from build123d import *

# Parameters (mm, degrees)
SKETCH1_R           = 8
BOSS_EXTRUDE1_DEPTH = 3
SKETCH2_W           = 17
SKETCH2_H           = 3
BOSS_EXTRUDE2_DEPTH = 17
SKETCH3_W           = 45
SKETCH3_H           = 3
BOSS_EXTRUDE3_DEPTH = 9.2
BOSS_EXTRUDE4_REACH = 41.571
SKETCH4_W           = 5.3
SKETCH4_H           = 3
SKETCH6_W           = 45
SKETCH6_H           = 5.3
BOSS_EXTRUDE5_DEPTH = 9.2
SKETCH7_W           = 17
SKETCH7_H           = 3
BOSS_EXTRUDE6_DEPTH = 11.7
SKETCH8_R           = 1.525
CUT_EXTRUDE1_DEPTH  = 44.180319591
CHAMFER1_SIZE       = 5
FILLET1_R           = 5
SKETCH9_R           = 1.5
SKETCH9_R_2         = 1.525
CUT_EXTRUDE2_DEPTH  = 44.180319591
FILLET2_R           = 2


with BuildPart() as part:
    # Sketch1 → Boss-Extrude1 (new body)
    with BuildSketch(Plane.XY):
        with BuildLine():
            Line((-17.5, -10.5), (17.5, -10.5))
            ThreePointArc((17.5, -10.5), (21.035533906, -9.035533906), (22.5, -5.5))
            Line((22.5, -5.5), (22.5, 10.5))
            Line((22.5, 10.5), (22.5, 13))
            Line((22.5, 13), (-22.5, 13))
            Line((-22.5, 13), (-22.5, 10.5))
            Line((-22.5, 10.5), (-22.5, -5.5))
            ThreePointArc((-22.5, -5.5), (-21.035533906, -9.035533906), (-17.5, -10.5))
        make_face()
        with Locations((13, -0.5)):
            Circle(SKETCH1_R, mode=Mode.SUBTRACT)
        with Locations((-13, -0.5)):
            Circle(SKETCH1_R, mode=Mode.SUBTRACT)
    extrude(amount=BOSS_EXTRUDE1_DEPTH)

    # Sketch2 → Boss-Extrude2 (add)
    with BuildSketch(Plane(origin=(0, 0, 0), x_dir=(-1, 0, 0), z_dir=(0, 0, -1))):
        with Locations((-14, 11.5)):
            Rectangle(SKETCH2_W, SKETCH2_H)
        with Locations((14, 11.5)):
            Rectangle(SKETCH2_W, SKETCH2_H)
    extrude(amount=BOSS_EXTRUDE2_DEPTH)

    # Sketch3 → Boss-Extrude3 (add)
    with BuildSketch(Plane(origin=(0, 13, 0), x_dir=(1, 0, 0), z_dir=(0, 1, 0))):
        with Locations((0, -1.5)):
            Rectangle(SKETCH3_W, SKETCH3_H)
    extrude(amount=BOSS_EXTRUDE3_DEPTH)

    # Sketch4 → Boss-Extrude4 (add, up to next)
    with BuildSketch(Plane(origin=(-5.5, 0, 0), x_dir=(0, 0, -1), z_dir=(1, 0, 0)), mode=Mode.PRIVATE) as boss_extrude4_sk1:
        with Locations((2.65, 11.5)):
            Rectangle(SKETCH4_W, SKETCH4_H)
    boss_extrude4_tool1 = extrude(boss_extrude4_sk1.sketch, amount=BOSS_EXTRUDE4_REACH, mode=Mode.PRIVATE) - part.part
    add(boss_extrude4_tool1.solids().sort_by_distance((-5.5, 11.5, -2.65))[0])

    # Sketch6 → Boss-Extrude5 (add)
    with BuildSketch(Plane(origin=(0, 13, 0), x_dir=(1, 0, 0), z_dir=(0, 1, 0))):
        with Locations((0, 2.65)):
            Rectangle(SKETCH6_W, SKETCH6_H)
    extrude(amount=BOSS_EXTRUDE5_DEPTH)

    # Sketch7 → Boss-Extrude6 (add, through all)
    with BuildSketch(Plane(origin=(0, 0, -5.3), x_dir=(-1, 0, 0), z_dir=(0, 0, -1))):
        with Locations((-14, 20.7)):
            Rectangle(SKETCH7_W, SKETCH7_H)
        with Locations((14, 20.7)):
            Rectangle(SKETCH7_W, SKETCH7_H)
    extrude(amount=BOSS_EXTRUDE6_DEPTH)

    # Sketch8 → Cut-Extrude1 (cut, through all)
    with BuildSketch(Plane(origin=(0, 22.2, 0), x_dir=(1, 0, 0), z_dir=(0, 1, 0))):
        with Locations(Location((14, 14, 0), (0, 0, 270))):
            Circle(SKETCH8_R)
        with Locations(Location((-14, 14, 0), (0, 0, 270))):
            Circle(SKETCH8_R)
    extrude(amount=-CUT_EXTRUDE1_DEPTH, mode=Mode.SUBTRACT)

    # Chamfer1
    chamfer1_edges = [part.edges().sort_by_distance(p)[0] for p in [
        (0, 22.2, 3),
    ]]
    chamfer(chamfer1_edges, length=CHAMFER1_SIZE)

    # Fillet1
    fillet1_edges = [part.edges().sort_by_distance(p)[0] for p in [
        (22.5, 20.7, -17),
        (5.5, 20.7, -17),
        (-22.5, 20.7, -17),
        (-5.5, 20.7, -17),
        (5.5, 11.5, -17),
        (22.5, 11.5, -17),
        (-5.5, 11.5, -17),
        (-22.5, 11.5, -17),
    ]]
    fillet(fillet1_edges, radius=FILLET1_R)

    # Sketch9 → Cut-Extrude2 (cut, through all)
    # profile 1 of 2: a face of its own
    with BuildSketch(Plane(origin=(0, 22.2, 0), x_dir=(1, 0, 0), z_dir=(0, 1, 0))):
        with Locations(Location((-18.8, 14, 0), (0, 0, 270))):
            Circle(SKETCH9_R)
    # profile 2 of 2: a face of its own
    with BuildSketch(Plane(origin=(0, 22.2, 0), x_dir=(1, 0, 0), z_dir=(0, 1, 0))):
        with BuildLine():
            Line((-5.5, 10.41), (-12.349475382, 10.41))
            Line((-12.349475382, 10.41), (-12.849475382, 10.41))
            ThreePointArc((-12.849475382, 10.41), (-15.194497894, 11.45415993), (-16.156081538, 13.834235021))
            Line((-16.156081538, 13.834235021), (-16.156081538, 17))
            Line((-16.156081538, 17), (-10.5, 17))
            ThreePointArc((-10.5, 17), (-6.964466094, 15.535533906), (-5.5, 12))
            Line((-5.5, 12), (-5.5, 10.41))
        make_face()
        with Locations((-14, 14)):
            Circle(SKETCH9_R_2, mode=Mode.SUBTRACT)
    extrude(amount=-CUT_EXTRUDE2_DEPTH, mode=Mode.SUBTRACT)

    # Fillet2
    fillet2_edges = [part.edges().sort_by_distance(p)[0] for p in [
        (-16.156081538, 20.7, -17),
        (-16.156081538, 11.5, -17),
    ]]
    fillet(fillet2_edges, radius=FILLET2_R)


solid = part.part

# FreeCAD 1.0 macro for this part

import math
import FreeCAD as App
import Part
import Sketcher
from FreeCAD import Vector
Q = App.Units.Quantity


def edges_at(feature, points):
    """Names of the edges that pass closest to the given points."""
    edges = feature.Shape.Edges
    near = lambda p: min(range(len(edges)), key=lambda i: edges[i].distToShape(Part.Vertex(*p))[0])
    return sorted({f"Edge{near(p) + 1}" for p in points})

doc = App.newDocument("Part")
params = doc.addObject("Spreadsheet::Sheet", "Params")
for row, (alias, value) in enumerate([
    ("sketch1_diameter", "16 mm"),
    ("sketch1_radius", "5 mm"),
    ("sketch1_width", "35 mm"),
    ("sketch1_height", "18.5 mm"),
    ("pad1_length", "3 mm"),
    ("sketch2_width", "17 mm"),
    ("sketch2_height", "3 mm"),
    ("pad2_length", "17 mm"),
    ("sketch3_width", "45 mm"),
    ("sketch3_height", "3 mm"),
    ("pad3_length", "9.2 mm"),
    ("sketch4_width", "3 mm"),
    ("sketch4_height", "5.3 mm"),
    ("sketch5_width", "45 mm"),
    ("sketch5_height", "5.3 mm"),
    ("pad5_length", "9.2 mm"),
    ("sketch6_width", "17 mm"),
    ("sketch6_height", "3 mm"),
    ("pad6_length", "11.7 mm"),
    ("sketch7_diameter", "3.05 mm"),
    ("chamfer_size", "5 mm"),
    ("fillet_radius", "5 mm"),
    ("sketch8_diameter", "3 mm"),
    ("sketch8_radius", "5 mm"),
    ("sketch8_diameter2", "3.05 mm"),
    ("sketch8_height", "1.59 mm"),
    ("pocket2_length", "44.18032 mm"),
    ("fillet2_radius", "2 mm"),
], start=1):
    params.set(f"A{row}", alias)
    params.set(f"B{row}", "=" + value)
    params.setAlias(f"B{row}", alias)

body = doc.addObject("PartDesign::Body", "Body")

sketch1 = body.newObject("Sketcher::SketchObject", "Sketch")
sketch1.AttachmentSupport = (doc.getObject("XY_Plane"), [""])
sketch1.MapMode = "FlatFace"
sketch1.addGeometry([
    Part.LineSegment(Vector(-17.5, -10.5, 0), Vector(17.5, -10.5, 0)),
    Part.ArcOfCircle(Part.Circle(Vector(17.5, -5.5, 0), Vector(0, 0, 1), 5), math.radians(-90), math.radians(0)),
    Part.LineSegment(Vector(22.5, -5.5, 0), Vector(22.5, 13, 0)),
    Part.LineSegment(Vector(22.5, 13, 0), Vector(-22.5, 13, 0)),
    Part.LineSegment(Vector(-22.5, 13, 0), Vector(-22.5, -5.5, 0)),
    Part.ArcOfCircle(Part.Circle(Vector(-17.5, -5.5, 0), Vector(0, 0, 1), 5), math.radians(180), math.radians(270)),
    Part.Circle(Vector(-13, -0.5, 0), Vector(0, 0, 1), 8),
    Part.Circle(Vector(13, -0.5, 0), Vector(0, 0, 1), 8),
], False)
sketch1.addConstraint([
    Sketcher.Constraint("Tangent", 0, 2, 1, 1),
    Sketcher.Constraint("Tangent", 1, 2, 2, 1),
    Sketcher.Constraint("Coincident", 2, 2, 3, 1),
    Sketcher.Constraint("Coincident", 3, 2, 4, 1),
    Sketcher.Constraint("Tangent", 4, 2, 5, 1),
    Sketcher.Constraint("Tangent", 5, 2, 0, 1),
    Sketcher.Constraint("Horizontal", 0),
    Sketcher.Constraint("Vertical", 2),
    Sketcher.Constraint("Horizontal", 3),
    Sketcher.Constraint("Vertical", 4),
    Sketcher.Constraint("Equal", 1, 5),
    Sketcher.Constraint("Equal", 6, 7),
    Sketcher.Constraint("Symmetric", 6, 3, 7, 3, -2),
    Sketcher.Constraint("Diameter", 6, Q("16 mm")),
    Sketcher.Constraint("Radius", 1, Q("5 mm")),
    Sketcher.Constraint("DistanceX", 0, 1, 0, 2, Q("35 mm")),
    Sketcher.Constraint("DistanceY", 2, 1, 2, 2, Q("18.5 mm")),
    Sketcher.Constraint("DistanceX", 6, 3, -1, 1, Q("13 mm")),
    Sketcher.Constraint("DistanceY", -1, 1, 2, 2, Q("13 mm")),
    Sketcher.Constraint("DistanceY", 5, 3, 6, 3, Q("5 mm")),
    Sketcher.Constraint("DistanceX", -1, 1, 1, 3, Q("17.5 mm")),
])
sketch1.setExpression("Constraints[13]", "Params.sketch1_diameter")
sketch1.setExpression("Constraints[14]", "Params.sketch1_radius")
sketch1.setExpression("Constraints[15]", "Params.sketch1_width")
sketch1.setExpression("Constraints[16]", "Params.sketch1_height")
pad1 = body.newObject("PartDesign::Pad", "Pad")
pad1.Profile = sketch1
pad1.setExpression("Length", "Params.pad1_length")

sketch2 = body.newObject("Sketcher::SketchObject", "Sketch001")
sketch2.AttachmentSupport = (doc.getObject("XY_Plane"), [""])
sketch2.MapMode = "FlatFace"
sketch2.addGeometry([
    Part.LineSegment(Vector(22.5, 13, 0), Vector(22.5, 10, 0)),
    Part.LineSegment(Vector(22.5, 10, 0), Vector(5.5, 10, 0)),
    Part.LineSegment(Vector(5.5, 10, 0), Vector(5.5, 13, 0)),
    Part.LineSegment(Vector(5.5, 13, 0), Vector(22.5, 13, 0)),
    Part.LineSegment(Vector(-5.5, 13, 0), Vector(-5.5, 10, 0)),
    Part.LineSegment(Vector(-5.5, 10, 0), Vector(-22.5, 10, 0)),
    Part.LineSegment(Vector(-22.5, 10, 0), Vector(-22.5, 13, 0)),
    Part.LineSegment(Vector(-22.5, 13, 0), Vector(-5.5, 13, 0)),
], False)
sketch2.addConstraint([
    Sketcher.Constraint("Coincident", 0, 2, 1, 1),
    Sketcher.Constraint("Coincident", 1, 2, 2, 1),
    Sketcher.Constraint("Coincident", 2, 2, 3, 1),
    Sketcher.Constraint("Coincident", 3, 2, 0, 1),
    Sketcher.Constraint("Coincident", 4, 2, 5, 1),
    Sketcher.Constraint("Coincident", 5, 2, 6, 1),
    Sketcher.Constraint("Coincident", 6, 2, 7, 1),
    Sketcher.Constraint("Coincident", 7, 2, 4, 1),
    Sketcher.Constraint("Vertical", 0),
    Sketcher.Constraint("Horizontal", 1),
    Sketcher.Constraint("Vertical", 2),
    Sketcher.Constraint("Horizontal", 3),
    Sketcher.Constraint("Vertical", 4),
    Sketcher.Constraint("Horizontal", 5),
    Sketcher.Constraint("Vertical", 6),
    Sketcher.Constraint("Horizontal", 7),
    Sketcher.Constraint("Symmetric", 1, 2, 4, 2, -2),
    Sketcher.Constraint("Symmetric", 3, 2, 6, 2, -2),
    Sketcher.Constraint("DistanceX", 1, 2, 1, 1, Q("17 mm")),
    Sketcher.Constraint("DistanceY", 0, 2, 0, 1, Q("3 mm")),
    Sketcher.Constraint("DistanceY", -1, 1, 0, 2, Q("10 mm")),
    Sketcher.Constraint("DistanceX", 4, 2, 1, 2, Q("11 mm")),
])
sketch2.setExpression("Constraints[18]", "Params.sketch2_width")
sketch2.setExpression("Constraints[19]", "Params.sketch2_height")
pad2 = body.newObject("PartDesign::Pad", "Pad001")
pad2.Profile = sketch2
pad2.setExpression("Length", "Params.pad2_length")
pad2.Reversed = True

sketch3 = body.newObject("Sketcher::SketchObject", "Sketch002")
sketch3.AttachmentSupport = (doc.getObject("XZ_Plane"), [""])
sketch3.MapMode = "FlatFace"
sketch3.AttachmentOffset = App.Placement(Vector(0, 0, -13), App.Rotation())
sketch3.addGeometry([
    Part.LineSegment(Vector(-22.5, 0, 0), Vector(-22.5, 3, 0)),
    Part.LineSegment(Vector(-22.5, 3, 0), Vector(22.5, 3, 0)),
    Part.LineSegment(Vector(22.5, 3, 0), Vector(22.5, 0, 0)),
    Part.LineSegment(Vector(22.5, 0, 0), Vector(-22.5, 0, 0)),
], False)
sketch3.addConstraint([
    Sketcher.Constraint("Coincident", 0, 2, 1, 1),
    Sketcher.Constraint("Coincident", 1, 2, 2, 1),
    Sketcher.Constraint("Coincident", 2, 2, 3, 1),
    Sketcher.Constraint("Coincident", 3, 2, 0, 1),
    Sketcher.Constraint("Vertical", 0),
    Sketcher.Constraint("Horizontal", 1),
    Sketcher.Constraint("Vertical", 2),
    Sketcher.Constraint("Horizontal", 3),
    Sketcher.Constraint("Symmetric", 2, 2, 3, 2, -1, 1),
    Sketcher.Constraint("DistanceX", 1, 1, 1, 2, Q("45 mm")),
    Sketcher.Constraint("DistanceY", 0, 1, 0, 2, Q("3 mm")),
])
sketch3.setExpression("Constraints[9]", "Params.sketch3_width")
sketch3.setExpression("Constraints[10]", "Params.sketch3_height")
pad3 = body.newObject("PartDesign::Pad", "Pad002")
pad3.Profile = sketch3
pad3.setExpression("Length", "Params.pad3_length")
pad3.Reversed = True

sketch4 = body.newObject("Sketcher::SketchObject", "Sketch003")
sketch4.AttachmentSupport = (doc.getObject("YZ_Plane"), [""])
sketch4.MapMode = "FlatFace"
sketch4.AttachmentOffset = App.Placement(Vector(0, 0, -5.5), App.Rotation())
sketch4.addGeometry([
    Part.LineSegment(Vector(13, 0, 0), Vector(10, 0, 0)),
    Part.LineSegment(Vector(10, 0, 0), Vector(10, -5.3, 0)),
    Part.LineSegment(Vector(10, -5.3, 0), Vector(13, -5.3, 0)),
    Part.LineSegment(Vector(13, -5.3, 0), Vector(13, 0, 0)),
], False)
sketch4.addConstraint([
    Sketcher.Constraint("Coincident", 0, 2, 1, 1),
    Sketcher.Constraint("Coincident", 1, 2, 2, 1),
    Sketcher.Constraint("Coincident", 2, 2, 3, 1),
    Sketcher.Constraint("Coincident", 3, 2, 0, 1),
    Sketcher.Constraint("Horizontal", 0),
    Sketcher.Constraint("Vertical", 1),
    Sketcher.Constraint("Horizontal", 2),
    Sketcher.Constraint("Vertical", 3),
    Sketcher.Constraint("PointOnObject", 0, 2, -1),
    Sketcher.Constraint("DistanceX", 0, 2, 0, 1, Q("3 mm")),
    Sketcher.Constraint("DistanceY", 1, 2, 1, 1, Q("5.3 mm")),
    Sketcher.Constraint("DistanceX", -1, 1, 0, 2, Q("10 mm")),
])
sketch4.setExpression("Constraints[9]", "Params.sketch4_width")
sketch4.setExpression("Constraints[10]", "Params.sketch4_height")
pad4 = body.newObject("PartDesign::Pad", "Pad003")
pad4.Profile = sketch4
pad4.Type = "UpToFirst"

sketch5 = body.newObject("Sketcher::SketchObject", "Sketch004")
sketch5.AttachmentSupport = (doc.getObject("XZ_Plane"), [""])
sketch5.MapMode = "FlatFace"
sketch5.AttachmentOffset = App.Placement(Vector(0, 0, -13), App.Rotation())
sketch5.addGeometry([
    Part.LineSegment(Vector(-22.5, -5.3, 0), Vector(-22.5, 0, 0)),
    Part.LineSegment(Vector(-22.5, 0, 0), Vector(22.5, 0, 0)),
    Part.LineSegment(Vector(22.5, 0, 0), Vector(22.5, -5.3, 0)),
    Part.LineSegment(Vector(22.5, -5.3, 0), Vector(-22.5, -5.3, 0)),
], False)
sketch5.addConstraint([
    Sketcher.Constraint("Coincident", 0, 2, 1, 1),
    Sketcher.Constraint("Coincident", 1, 2, 2, 1),
    Sketcher.Constraint("Coincident", 2, 2, 3, 1),
    Sketcher.Constraint("Coincident", 3, 2, 0, 1),
    Sketcher.Constraint("Vertical", 0),
    Sketcher.Constraint("Horizontal", 1),
    Sketcher.Constraint("Vertical", 2),
    Sketcher.Constraint("Horizontal", 3),
    Sketcher.Constraint("Symmetric", 0, 2, 1, 2, -1, 1),
    Sketcher.Constraint("DistanceX", 1, 1, 1, 2, Q("45 mm")),
    Sketcher.Constraint("DistanceY", 0, 1, 0, 2, Q("5.3 mm")),
])
sketch5.setExpression("Constraints[9]", "Params.sketch5_width")
sketch5.setExpression("Constraints[10]", "Params.sketch5_height")
pad5 = body.newObject("PartDesign::Pad", "Pad004")
pad5.Profile = sketch5
pad5.setExpression("Length", "Params.pad5_length")
pad5.Reversed = True

sketch6 = body.newObject("Sketcher::SketchObject", "Sketch005")
sketch6.AttachmentSupport = (doc.getObject("XY_Plane"), [""])
sketch6.MapMode = "FlatFace"
sketch6.AttachmentOffset = App.Placement(Vector(0, 0, -5.3), App.Rotation())
sketch6.addGeometry([
    Part.LineSegment(Vector(22.5, 22.2, 0), Vector(22.5, 19.2, 0)),
    Part.LineSegment(Vector(22.5, 19.2, 0), Vector(5.5, 19.2, 0)),
    Part.LineSegment(Vector(5.5, 19.2, 0), Vector(5.5, 22.2, 0)),
    Part.LineSegment(Vector(5.5, 22.2, 0), Vector(22.5, 22.2, 0)),
    Part.LineSegment(Vector(-5.5, 22.2, 0), Vector(-5.5, 19.2, 0)),
    Part.LineSegment(Vector(-5.5, 19.2, 0), Vector(-22.5, 19.2, 0)),
    Part.LineSegment(Vector(-22.5, 19.2, 0), Vector(-22.5, 22.2, 0)),
    Part.LineSegment(Vector(-22.5, 22.2, 0), Vector(-5.5, 22.2, 0)),
], False)
sketch6.addConstraint([
    Sketcher.Constraint("Coincident", 0, 2, 1, 1),
    Sketcher.Constraint("Coincident", 1, 2, 2, 1),
    Sketcher.Constraint("Coincident", 2, 2, 3, 1),
    Sketcher.Constraint("Coincident", 3, 2, 0, 1),
    Sketcher.Constraint("Coincident", 4, 2, 5, 1),
    Sketcher.Constraint("Coincident", 5, 2, 6, 1),
    Sketcher.Constraint("Coincident", 6, 2, 7, 1),
    Sketcher.Constraint("Coincident", 7, 2, 4, 1),
    Sketcher.Constraint("Vertical", 0),
    Sketcher.Constraint("Horizontal", 1),
    Sketcher.Constraint("Vertical", 2),
    Sketcher.Constraint("Horizontal", 3),
    Sketcher.Constraint("Vertical", 4),
    Sketcher.Constraint("Horizontal", 5),
    Sketcher.Constraint("Vertical", 6),
    Sketcher.Constraint("Horizontal", 7),
    Sketcher.Constraint("Symmetric", 1, 2, 4, 2, -2),
    Sketcher.Constraint("Symmetric", 3, 2, 6, 2, -2),
    Sketcher.Constraint("DistanceX", 1, 2, 1, 1, Q("17 mm")),
    Sketcher.Constraint("DistanceY", 0, 2, 0, 1, Q("3 mm")),
    Sketcher.Constraint("DistanceX", 4, 2, 1, 2, Q("11 mm")),
    Sketcher.Constraint("DistanceY", -1, 1, 0, 2, Q("19.2 mm")),
])
sketch6.setExpression("Constraints[18]", "Params.sketch6_width")
sketch6.setExpression("Constraints[19]", "Params.sketch6_height")
pad6 = body.newObject("PartDesign::Pad", "Pad005")
pad6.Profile = sketch6
pad6.setExpression("Length", "Params.pad6_length")
pad6.Reversed = True

sketch7 = body.newObject("Sketcher::SketchObject", "Sketch006")
sketch7.AttachmentSupport = (doc.getObject("XZ_Plane"), [""])
sketch7.MapMode = "FlatFace"
sketch7.AttachmentOffset = App.Placement(Vector(0, 0, -22.2), App.Rotation())
sketch7.addGeometry([
    Part.Circle(Vector(14, -14, 0), Vector(0, 0, 1), 1.525),
    Part.Circle(Vector(-14, -14, 0), Vector(0, 0, 1), 1.525),
], False)
sketch7.addConstraint([
    Sketcher.Constraint("Equal", 0, 1),
    Sketcher.Constraint("Symmetric", 0, 3, 1, 3, -2),
    Sketcher.Constraint("Diameter", 0, Q("3.05 mm")),
    Sketcher.Constraint("DistanceX", -1, 1, 0, 3, Q("14 mm")),
    Sketcher.Constraint("DistanceY", 0, 3, -1, 1, Q("14 mm")),
])
sketch7.setExpression("Constraints[2]", "Params.sketch7_diameter")
pocket1 = body.newObject("PartDesign::Pocket", "Pocket")
pocket1.Profile = sketch7
pocket1.Type = "ThroughAll"
pocket1.Reversed = True
doc.recompute()

chamfer = body.newObject("PartDesign::Chamfer", "Chamfer")
chamfer.Base = (pocket1, edges_at(pocket1, [(0, 22.2, 3)]))
chamfer.setExpression("Size", "Params.chamfer_size")
doc.recompute()

fillet = body.newObject("PartDesign::Fillet", "Fillet")
fillet.Base = (chamfer, edges_at(chamfer, [
    (22.5, 20.7, -17),
    (5.5, 20.7, -17),
    (-22.5, 20.7, -17),
    (-5.5, 20.7, -17),
    (5.5, 11.5, -17),
    (22.5, 11.5, -17),
    (-5.5, 11.5, -17),
    (-22.5, 11.5, -17),
]))
fillet.setExpression("Radius", "Params.fillet_radius")

sketch8 = body.newObject("Sketcher::SketchObject", "Sketch007")
sketch8.AttachmentSupport = (doc.getObject("XZ_Plane"), [""])
sketch8.MapMode = "FlatFace"
sketch8.AttachmentOffset = App.Placement(Vector(0, 0, -22.2), App.Rotation())
sketch8.addGeometry([
    Part.Circle(Vector(-18.8, -14, 0), Vector(0, 0, 1), 1.5),
    Part.LineSegment(Vector(-12.849475, -10.41, 0), Vector(-5.5, -10.41, 0)),
    Part.LineSegment(Vector(-5.5, -10.41, 0), Vector(-5.5, -12, 0)),
    Part.ArcOfCircle(Part.Circle(Vector(-10.5, -12, 0), Vector(0, 0, 1), 5), math.radians(-90), math.radians(0)),
    Part.LineSegment(Vector(-10.5, -17, 0), Vector(-16.156082, -17, 0)),
    Part.LineSegment(Vector(-16.156082, -17, 0), Vector(-16.156082, -13.834235, 0)),
    Part.ArcOfCircle(Part.Circle(Vector(-12.729754, -13.834235, 0), Vector(0, 0, 1), 3.426327), math.radians(92.00241), math.radians(180)),
    Part.Circle(Vector(-14, -14, 0), Vector(0, 0, 1), 1.525),
], False)
sketch8.addConstraint([
    Sketcher.Constraint("Coincident", 1, 2, 2, 1),
    Sketcher.Constraint("Tangent", 2, 2, 3, 2),
    Sketcher.Constraint("Tangent", 3, 1, 4, 1),
    Sketcher.Constraint("Coincident", 4, 2, 5, 1),
    Sketcher.Constraint("Tangent", 5, 2, 6, 2),
    Sketcher.Constraint("Coincident", 6, 1, 1, 1),
    Sketcher.Constraint("Horizontal", 1),
    Sketcher.Constraint("Vertical", 2),
    Sketcher.Constraint("Horizontal", 4),
    Sketcher.Constraint("Vertical", 5),
    Sketcher.Constraint("Horizontal", 0, 3, 7, 3),
    Sketcher.Constraint("Diameter", 0, Q("3 mm")),
    Sketcher.Constraint("Radius", 3, Q("5 mm")),
    Sketcher.Constraint("Diameter", 7, Q("3.05 mm")),
    Sketcher.Constraint("DistanceY", 0, 3, -1, 1, Q("14 mm")),
    Sketcher.Constraint("DistanceY", 3, 3, -1, 1, Q("12 mm")),
    Sketcher.Constraint("DistanceX", 7, 3, -1, 1, Q("14 mm")),
    Sketcher.Constraint("DistanceY", 2, 2, 2, 1, Q("1.59 mm")),
    Sketcher.Constraint("DistanceX", 0, 3, -1, 1, Q("18.8 mm")),
    Sketcher.Constraint("DistanceX", 3, 3, -1, 1, Q("10.5 mm")),
    Sketcher.Constraint("Radius", 6, Q("3.426327 mm")),
    Sketcher.Constraint("DistanceX", 4, 2, 4, 1, Q("5.656082 mm")),
    Sketcher.Constraint("DistanceX", 1, 1, 1, 2, Q("7.349475 mm")),
])
sketch8.setExpression("Constraints[11]", "Params.sketch8_diameter")
sketch8.setExpression("Constraints[12]", "Params.sketch8_radius")
sketch8.setExpression("Constraints[13]", "Params.sketch8_diameter2")
sketch8.setExpression("Constraints[17]", "Params.sketch8_height")
pocket2 = body.newObject("PartDesign::Pocket", "Pocket001")
pocket2.Profile = sketch8
pocket2.setExpression("Length", "Params.pocket2_length")
pocket2.Reversed = True
doc.recompute()

fillet2 = body.newObject("PartDesign::Fillet", "Fillet001")
fillet2.Base = (pocket2, edges_at(pocket2, [(-16.156, 20.7, -17), (-16.156, 11.5, -17)]))
fillet2.setExpression("Radius", "Params.fillet2_radius")

doc.recompute()
